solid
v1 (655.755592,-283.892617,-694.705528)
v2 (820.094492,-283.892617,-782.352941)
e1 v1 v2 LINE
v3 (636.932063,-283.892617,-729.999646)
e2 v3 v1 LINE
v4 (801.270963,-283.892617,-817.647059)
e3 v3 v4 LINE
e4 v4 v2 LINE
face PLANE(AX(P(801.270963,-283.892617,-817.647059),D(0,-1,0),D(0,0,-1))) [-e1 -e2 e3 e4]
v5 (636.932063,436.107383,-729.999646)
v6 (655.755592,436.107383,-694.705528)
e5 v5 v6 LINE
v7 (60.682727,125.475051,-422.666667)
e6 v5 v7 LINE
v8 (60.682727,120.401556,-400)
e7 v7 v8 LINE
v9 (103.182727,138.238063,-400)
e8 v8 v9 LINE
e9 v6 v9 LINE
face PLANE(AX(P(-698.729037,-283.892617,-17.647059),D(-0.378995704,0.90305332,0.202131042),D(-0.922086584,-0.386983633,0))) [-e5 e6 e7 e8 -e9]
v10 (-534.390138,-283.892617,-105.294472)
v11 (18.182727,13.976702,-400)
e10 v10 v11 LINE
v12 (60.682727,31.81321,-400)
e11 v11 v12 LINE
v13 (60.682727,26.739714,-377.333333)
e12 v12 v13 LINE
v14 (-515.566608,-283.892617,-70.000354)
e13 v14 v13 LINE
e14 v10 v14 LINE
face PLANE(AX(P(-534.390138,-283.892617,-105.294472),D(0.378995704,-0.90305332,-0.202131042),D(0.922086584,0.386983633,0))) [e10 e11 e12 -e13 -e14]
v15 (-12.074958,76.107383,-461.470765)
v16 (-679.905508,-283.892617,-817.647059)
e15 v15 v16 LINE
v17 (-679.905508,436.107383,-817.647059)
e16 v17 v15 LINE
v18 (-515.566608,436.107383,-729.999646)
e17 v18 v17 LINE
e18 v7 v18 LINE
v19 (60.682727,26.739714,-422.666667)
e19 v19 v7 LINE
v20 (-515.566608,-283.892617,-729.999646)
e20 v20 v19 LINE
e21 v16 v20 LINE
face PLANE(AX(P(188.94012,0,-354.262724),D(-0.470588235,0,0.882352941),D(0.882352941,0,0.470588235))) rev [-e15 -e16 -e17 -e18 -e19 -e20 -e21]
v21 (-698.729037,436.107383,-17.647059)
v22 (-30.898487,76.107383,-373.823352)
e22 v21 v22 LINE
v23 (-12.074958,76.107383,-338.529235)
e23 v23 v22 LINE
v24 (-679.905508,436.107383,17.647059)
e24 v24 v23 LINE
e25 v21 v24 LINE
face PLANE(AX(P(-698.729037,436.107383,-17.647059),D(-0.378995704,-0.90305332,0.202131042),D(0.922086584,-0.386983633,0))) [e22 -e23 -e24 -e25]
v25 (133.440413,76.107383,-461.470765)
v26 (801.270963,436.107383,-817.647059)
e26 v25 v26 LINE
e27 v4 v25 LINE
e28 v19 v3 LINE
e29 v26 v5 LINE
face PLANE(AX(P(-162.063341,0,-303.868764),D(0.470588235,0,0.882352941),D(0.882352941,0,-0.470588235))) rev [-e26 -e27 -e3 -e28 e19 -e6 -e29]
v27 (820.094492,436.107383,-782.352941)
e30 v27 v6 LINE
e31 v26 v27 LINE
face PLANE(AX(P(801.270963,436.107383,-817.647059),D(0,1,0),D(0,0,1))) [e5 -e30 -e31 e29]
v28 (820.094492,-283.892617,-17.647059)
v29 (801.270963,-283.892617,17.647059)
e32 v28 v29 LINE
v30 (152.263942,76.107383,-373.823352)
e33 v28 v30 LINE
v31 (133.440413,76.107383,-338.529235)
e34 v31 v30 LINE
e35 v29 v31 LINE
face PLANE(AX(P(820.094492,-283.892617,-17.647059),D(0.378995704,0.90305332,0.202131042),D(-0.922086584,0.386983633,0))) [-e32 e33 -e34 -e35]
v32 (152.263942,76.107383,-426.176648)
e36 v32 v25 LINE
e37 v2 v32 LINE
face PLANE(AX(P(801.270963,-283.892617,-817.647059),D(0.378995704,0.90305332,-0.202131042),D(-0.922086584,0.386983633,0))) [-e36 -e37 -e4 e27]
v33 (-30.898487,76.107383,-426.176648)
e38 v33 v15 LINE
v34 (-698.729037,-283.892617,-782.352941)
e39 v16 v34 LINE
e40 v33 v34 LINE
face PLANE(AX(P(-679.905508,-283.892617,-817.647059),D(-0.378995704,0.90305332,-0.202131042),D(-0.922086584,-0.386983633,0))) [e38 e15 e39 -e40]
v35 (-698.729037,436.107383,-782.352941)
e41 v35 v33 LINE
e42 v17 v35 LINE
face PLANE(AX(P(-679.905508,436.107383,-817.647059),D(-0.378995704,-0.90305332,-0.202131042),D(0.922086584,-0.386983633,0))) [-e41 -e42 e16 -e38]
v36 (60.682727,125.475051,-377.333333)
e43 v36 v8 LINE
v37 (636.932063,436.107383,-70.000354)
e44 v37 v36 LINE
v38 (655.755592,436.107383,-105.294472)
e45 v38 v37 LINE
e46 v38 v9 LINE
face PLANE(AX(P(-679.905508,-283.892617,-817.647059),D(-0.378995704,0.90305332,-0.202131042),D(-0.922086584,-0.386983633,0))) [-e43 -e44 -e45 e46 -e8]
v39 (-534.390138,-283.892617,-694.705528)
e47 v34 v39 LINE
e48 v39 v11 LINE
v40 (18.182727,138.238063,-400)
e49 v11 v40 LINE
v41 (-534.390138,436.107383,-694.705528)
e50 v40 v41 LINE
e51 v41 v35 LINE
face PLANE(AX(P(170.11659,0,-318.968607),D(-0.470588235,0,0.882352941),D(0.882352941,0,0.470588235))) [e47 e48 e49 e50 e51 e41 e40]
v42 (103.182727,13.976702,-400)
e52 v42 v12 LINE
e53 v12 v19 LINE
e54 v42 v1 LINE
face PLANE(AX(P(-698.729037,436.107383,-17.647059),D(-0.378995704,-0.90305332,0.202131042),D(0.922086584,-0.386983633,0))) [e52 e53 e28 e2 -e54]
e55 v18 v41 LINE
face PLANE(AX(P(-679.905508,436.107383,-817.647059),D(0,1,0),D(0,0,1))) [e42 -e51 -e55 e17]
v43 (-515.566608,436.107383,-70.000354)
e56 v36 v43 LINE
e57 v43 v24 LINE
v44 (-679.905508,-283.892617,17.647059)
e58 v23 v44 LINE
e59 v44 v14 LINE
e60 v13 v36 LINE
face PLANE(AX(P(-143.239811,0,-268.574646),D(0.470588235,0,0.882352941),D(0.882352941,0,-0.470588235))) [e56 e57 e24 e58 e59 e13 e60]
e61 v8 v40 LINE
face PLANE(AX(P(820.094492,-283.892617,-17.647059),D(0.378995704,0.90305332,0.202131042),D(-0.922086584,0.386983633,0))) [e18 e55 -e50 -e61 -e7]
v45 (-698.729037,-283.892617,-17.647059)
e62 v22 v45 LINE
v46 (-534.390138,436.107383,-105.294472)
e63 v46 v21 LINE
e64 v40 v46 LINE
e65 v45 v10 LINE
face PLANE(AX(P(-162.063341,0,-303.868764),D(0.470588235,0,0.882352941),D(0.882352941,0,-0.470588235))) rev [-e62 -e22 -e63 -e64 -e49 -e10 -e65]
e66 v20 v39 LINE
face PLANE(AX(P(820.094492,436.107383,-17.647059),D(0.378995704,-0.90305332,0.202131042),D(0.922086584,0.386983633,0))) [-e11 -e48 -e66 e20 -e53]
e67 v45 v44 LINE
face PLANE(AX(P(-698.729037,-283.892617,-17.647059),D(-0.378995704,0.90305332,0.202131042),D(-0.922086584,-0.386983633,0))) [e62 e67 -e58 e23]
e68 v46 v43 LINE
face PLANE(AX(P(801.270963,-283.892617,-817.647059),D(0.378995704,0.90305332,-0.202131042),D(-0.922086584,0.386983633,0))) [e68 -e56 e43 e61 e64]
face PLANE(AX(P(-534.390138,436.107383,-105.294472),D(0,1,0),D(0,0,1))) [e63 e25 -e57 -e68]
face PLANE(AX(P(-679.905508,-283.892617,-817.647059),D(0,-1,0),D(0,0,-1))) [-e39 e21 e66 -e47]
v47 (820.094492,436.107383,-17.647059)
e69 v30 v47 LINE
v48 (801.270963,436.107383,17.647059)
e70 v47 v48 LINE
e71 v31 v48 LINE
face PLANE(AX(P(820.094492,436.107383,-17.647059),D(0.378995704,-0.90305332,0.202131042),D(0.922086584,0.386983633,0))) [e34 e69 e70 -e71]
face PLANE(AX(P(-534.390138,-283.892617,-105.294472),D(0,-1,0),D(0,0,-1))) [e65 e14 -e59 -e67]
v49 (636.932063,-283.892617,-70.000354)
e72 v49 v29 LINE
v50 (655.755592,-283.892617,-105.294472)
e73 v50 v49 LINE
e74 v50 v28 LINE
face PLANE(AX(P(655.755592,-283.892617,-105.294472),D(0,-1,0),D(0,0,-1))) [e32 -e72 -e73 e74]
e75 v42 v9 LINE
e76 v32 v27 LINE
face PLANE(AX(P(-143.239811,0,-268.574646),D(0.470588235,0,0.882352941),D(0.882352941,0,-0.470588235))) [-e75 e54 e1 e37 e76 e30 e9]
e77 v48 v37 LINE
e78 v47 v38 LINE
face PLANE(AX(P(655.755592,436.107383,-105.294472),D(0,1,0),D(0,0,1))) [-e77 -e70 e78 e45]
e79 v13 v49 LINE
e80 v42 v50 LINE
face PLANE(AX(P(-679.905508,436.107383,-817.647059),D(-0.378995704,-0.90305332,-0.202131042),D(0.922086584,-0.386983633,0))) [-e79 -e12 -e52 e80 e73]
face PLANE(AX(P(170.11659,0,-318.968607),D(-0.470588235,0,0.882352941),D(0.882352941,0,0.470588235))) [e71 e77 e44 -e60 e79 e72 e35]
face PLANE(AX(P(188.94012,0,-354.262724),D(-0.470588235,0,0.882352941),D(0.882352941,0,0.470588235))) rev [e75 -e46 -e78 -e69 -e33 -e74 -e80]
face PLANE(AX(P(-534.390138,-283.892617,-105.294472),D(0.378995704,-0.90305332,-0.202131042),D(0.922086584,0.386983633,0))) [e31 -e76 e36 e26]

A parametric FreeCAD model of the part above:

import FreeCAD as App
import Part
import Sketcher
from FreeCAD import Vector


def add_polygon(sketch, points):
    """Adds a closed chain of lines whose ends are joined by coincident constraints."""
    first, n = sketch.GeometryCount, len(points)
    for a, b in zip(points, points[1:] + points[:1]):
        sketch.addGeometry(Part.LineSegment(App.Vector(*a, 0), App.Vector(*b, 0)), False)
    for i in range(n):
        sketch.addConstraint(Sketcher.Constraint("Coincident", first + i, 2, first + (i + 1) % n, 1))

doc = App.newDocument("Part")
body = doc.addObject("PartDesign::Body", "Body")

sketch1 = body.newObject("Sketcher::SketchObject", "Sketch")
sketch1.Placement = App.Placement(Vector(179.528355, 0, -336.615665), App.Rotation(Vector(0.882352941, 0, 0.470588235), Vector(0, 0.999999999, 0), Vector(-0.470588235, 0, 0.882352941), "ZXY"))
add_polygon(sketch1, [(-985, 436), (529, -284), (715, -284), (-798, 436)])
sketch1.addConstraint([
    Sketcher.Constraint("Horizontal", 1),
    Sketcher.Constraint("Horizontal", 3),
    Sketcher.Constraint("Parallel", 0, 2),
    Sketcher.Constraint("DistanceY", 0, 2, 2, 2, 719.999999),
    Sketcher.Constraint("DistanceX", 3, 2, 1, 2, 1699.999999),
    Sketcher.Constraint("DistanceX", 1, 1, 1, 2, 186.250753),
    Sketcher.Constraint("DistanceX", -1, 1, 1, 2, 715.308288),
    Sketcher.Constraint("DistanceY", 0, 2, -1, 1, 283.892617),
])
pad1 = body.newObject("PartDesign::Pad", "Pad")
pad1.Profile = sketch1
pad1.Type = "TwoLengths"
pad1.Length = 20
pad1.Length2 = 20

sketch2 = body.newObject("Sketcher::SketchObject", "Sketch001")
sketch2.Placement = App.Placement(Vector(179.528355, 0, -336.615665), App.Rotation(Vector(0.882352941, 0, 0.470588235), Vector(0, 0.999999999, 0), Vector(-0.470588235, 0, 0.882352941), "ZXY"))
add_polygon(sketch2, [(529, 436), (-985, -284), (-798, -284), (715, 436)])
sketch2.addConstraint([
    Sketcher.Constraint("Horizontal", 1),
    Sketcher.Constraint("Horizontal", 3),
    Sketcher.Constraint("Parallel", 0, 2),
    Sketcher.Constraint("DistanceY", 1, 2, 2, 2, 719.999999),
    Sketcher.Constraint("DistanceX", 0, 2, 2, 2, 1699.999999),
    Sketcher.Constraint("DistanceX", 1, 1, 1, 2, 186.250753),
    Sketcher.Constraint("DistanceX", 0, 2, -1, 1, 984.691711),
    Sketcher.Constraint("DistanceY", 0, 2, -1, 1, 283.892617),
])
pad2 = body.newObject("PartDesign::Pad", "Pad001")
pad2.Profile = sketch2
pad2.Type = "TwoLengths"
pad2.Length = 20
pad2.Length2 = 20

sketch3 = body.newObject("Sketcher::SketchObject", "Sketch002")
sketch3.Placement = App.Placement(Vector(-152.651576, 0, -286.221705), App.Rotation(Vector(0.882352941, 0, -0.470588235), Vector(0, 0.999999999, 0), Vector(0.470588235, 0, 0.882352941), "ZXY"))
add_polygon(sketch3, [(1092, -284), (-422, 436), (-608, 436), (906, -284)])
sketch3.addConstraint([
    Sketcher.Constraint("Horizontal", 1),
    Sketcher.Constraint("Horizontal", 3),
    Sketcher.Constraint("Parallel", 0, 2),
    Sketcher.Constraint("DistanceY", 2, 2, 0, 2, 719.999999),
    Sketcher.Constraint("DistanceX", 1, 2, 3, 2, 1699.999999),
    Sketcher.Constraint("DistanceX", 1, 2, 1, 1, 186.250753),
    Sketcher.Constraint("DistanceX", 0, 2, -1, 1, 421.97037),
    Sketcher.Constraint("DistanceY", -1, 1, 0, 2, 436.107382),
])
pad3 = body.newObject("PartDesign::Pad", "Pad002")
pad3.Profile = sketch3
pad3.Type = "TwoLengths"
pad3.Length = 20
pad3.Length2 = 20

sketch4 = body.newObject("Sketcher::SketchObject", "Sketch003")
sketch4.Placement = App.Placement(Vector(-152.651576, 0, -286.221705), App.Rotation(Vector(0.882352941, 0, -0.470588235), Vector(0, 0.999999999, 0), Vector(0.470588235, 0, 0.882352941), "ZXY"))
add_polygon(sketch4, [(-422, -284), (1092, 436), (906, 436), (-608, -284)])
sketch4.addConstraint([
    Sketcher.Constraint("Horizontal", 1),
    Sketcher.Constraint("Horizontal", 3),
    Sketcher.Constraint("Parallel", 0, 2),
    Sketcher.Constraint("DistanceY", 2, 2, 1, 2, 719.999999),
    Sketcher.Constraint("DistanceX", 2, 2, 0, 2, 1699.999999),
    Sketcher.Constraint("DistanceX", 1, 2, 1, 1, 186.250753),
    Sketcher.Constraint("DistanceX", 3, 2, -1, 1, 421.97037),
    Sketcher.Constraint("DistanceY", -1, 1, 0, 2, 436.107382),
])
pad4 = body.newObject("PartDesign::Pad", "Pad003")
pad4.Profile = sketch4
pad4.Type = "TwoLengths"
pad4.Length = 20
pad4.Length2 = 20

doc.recompute()
